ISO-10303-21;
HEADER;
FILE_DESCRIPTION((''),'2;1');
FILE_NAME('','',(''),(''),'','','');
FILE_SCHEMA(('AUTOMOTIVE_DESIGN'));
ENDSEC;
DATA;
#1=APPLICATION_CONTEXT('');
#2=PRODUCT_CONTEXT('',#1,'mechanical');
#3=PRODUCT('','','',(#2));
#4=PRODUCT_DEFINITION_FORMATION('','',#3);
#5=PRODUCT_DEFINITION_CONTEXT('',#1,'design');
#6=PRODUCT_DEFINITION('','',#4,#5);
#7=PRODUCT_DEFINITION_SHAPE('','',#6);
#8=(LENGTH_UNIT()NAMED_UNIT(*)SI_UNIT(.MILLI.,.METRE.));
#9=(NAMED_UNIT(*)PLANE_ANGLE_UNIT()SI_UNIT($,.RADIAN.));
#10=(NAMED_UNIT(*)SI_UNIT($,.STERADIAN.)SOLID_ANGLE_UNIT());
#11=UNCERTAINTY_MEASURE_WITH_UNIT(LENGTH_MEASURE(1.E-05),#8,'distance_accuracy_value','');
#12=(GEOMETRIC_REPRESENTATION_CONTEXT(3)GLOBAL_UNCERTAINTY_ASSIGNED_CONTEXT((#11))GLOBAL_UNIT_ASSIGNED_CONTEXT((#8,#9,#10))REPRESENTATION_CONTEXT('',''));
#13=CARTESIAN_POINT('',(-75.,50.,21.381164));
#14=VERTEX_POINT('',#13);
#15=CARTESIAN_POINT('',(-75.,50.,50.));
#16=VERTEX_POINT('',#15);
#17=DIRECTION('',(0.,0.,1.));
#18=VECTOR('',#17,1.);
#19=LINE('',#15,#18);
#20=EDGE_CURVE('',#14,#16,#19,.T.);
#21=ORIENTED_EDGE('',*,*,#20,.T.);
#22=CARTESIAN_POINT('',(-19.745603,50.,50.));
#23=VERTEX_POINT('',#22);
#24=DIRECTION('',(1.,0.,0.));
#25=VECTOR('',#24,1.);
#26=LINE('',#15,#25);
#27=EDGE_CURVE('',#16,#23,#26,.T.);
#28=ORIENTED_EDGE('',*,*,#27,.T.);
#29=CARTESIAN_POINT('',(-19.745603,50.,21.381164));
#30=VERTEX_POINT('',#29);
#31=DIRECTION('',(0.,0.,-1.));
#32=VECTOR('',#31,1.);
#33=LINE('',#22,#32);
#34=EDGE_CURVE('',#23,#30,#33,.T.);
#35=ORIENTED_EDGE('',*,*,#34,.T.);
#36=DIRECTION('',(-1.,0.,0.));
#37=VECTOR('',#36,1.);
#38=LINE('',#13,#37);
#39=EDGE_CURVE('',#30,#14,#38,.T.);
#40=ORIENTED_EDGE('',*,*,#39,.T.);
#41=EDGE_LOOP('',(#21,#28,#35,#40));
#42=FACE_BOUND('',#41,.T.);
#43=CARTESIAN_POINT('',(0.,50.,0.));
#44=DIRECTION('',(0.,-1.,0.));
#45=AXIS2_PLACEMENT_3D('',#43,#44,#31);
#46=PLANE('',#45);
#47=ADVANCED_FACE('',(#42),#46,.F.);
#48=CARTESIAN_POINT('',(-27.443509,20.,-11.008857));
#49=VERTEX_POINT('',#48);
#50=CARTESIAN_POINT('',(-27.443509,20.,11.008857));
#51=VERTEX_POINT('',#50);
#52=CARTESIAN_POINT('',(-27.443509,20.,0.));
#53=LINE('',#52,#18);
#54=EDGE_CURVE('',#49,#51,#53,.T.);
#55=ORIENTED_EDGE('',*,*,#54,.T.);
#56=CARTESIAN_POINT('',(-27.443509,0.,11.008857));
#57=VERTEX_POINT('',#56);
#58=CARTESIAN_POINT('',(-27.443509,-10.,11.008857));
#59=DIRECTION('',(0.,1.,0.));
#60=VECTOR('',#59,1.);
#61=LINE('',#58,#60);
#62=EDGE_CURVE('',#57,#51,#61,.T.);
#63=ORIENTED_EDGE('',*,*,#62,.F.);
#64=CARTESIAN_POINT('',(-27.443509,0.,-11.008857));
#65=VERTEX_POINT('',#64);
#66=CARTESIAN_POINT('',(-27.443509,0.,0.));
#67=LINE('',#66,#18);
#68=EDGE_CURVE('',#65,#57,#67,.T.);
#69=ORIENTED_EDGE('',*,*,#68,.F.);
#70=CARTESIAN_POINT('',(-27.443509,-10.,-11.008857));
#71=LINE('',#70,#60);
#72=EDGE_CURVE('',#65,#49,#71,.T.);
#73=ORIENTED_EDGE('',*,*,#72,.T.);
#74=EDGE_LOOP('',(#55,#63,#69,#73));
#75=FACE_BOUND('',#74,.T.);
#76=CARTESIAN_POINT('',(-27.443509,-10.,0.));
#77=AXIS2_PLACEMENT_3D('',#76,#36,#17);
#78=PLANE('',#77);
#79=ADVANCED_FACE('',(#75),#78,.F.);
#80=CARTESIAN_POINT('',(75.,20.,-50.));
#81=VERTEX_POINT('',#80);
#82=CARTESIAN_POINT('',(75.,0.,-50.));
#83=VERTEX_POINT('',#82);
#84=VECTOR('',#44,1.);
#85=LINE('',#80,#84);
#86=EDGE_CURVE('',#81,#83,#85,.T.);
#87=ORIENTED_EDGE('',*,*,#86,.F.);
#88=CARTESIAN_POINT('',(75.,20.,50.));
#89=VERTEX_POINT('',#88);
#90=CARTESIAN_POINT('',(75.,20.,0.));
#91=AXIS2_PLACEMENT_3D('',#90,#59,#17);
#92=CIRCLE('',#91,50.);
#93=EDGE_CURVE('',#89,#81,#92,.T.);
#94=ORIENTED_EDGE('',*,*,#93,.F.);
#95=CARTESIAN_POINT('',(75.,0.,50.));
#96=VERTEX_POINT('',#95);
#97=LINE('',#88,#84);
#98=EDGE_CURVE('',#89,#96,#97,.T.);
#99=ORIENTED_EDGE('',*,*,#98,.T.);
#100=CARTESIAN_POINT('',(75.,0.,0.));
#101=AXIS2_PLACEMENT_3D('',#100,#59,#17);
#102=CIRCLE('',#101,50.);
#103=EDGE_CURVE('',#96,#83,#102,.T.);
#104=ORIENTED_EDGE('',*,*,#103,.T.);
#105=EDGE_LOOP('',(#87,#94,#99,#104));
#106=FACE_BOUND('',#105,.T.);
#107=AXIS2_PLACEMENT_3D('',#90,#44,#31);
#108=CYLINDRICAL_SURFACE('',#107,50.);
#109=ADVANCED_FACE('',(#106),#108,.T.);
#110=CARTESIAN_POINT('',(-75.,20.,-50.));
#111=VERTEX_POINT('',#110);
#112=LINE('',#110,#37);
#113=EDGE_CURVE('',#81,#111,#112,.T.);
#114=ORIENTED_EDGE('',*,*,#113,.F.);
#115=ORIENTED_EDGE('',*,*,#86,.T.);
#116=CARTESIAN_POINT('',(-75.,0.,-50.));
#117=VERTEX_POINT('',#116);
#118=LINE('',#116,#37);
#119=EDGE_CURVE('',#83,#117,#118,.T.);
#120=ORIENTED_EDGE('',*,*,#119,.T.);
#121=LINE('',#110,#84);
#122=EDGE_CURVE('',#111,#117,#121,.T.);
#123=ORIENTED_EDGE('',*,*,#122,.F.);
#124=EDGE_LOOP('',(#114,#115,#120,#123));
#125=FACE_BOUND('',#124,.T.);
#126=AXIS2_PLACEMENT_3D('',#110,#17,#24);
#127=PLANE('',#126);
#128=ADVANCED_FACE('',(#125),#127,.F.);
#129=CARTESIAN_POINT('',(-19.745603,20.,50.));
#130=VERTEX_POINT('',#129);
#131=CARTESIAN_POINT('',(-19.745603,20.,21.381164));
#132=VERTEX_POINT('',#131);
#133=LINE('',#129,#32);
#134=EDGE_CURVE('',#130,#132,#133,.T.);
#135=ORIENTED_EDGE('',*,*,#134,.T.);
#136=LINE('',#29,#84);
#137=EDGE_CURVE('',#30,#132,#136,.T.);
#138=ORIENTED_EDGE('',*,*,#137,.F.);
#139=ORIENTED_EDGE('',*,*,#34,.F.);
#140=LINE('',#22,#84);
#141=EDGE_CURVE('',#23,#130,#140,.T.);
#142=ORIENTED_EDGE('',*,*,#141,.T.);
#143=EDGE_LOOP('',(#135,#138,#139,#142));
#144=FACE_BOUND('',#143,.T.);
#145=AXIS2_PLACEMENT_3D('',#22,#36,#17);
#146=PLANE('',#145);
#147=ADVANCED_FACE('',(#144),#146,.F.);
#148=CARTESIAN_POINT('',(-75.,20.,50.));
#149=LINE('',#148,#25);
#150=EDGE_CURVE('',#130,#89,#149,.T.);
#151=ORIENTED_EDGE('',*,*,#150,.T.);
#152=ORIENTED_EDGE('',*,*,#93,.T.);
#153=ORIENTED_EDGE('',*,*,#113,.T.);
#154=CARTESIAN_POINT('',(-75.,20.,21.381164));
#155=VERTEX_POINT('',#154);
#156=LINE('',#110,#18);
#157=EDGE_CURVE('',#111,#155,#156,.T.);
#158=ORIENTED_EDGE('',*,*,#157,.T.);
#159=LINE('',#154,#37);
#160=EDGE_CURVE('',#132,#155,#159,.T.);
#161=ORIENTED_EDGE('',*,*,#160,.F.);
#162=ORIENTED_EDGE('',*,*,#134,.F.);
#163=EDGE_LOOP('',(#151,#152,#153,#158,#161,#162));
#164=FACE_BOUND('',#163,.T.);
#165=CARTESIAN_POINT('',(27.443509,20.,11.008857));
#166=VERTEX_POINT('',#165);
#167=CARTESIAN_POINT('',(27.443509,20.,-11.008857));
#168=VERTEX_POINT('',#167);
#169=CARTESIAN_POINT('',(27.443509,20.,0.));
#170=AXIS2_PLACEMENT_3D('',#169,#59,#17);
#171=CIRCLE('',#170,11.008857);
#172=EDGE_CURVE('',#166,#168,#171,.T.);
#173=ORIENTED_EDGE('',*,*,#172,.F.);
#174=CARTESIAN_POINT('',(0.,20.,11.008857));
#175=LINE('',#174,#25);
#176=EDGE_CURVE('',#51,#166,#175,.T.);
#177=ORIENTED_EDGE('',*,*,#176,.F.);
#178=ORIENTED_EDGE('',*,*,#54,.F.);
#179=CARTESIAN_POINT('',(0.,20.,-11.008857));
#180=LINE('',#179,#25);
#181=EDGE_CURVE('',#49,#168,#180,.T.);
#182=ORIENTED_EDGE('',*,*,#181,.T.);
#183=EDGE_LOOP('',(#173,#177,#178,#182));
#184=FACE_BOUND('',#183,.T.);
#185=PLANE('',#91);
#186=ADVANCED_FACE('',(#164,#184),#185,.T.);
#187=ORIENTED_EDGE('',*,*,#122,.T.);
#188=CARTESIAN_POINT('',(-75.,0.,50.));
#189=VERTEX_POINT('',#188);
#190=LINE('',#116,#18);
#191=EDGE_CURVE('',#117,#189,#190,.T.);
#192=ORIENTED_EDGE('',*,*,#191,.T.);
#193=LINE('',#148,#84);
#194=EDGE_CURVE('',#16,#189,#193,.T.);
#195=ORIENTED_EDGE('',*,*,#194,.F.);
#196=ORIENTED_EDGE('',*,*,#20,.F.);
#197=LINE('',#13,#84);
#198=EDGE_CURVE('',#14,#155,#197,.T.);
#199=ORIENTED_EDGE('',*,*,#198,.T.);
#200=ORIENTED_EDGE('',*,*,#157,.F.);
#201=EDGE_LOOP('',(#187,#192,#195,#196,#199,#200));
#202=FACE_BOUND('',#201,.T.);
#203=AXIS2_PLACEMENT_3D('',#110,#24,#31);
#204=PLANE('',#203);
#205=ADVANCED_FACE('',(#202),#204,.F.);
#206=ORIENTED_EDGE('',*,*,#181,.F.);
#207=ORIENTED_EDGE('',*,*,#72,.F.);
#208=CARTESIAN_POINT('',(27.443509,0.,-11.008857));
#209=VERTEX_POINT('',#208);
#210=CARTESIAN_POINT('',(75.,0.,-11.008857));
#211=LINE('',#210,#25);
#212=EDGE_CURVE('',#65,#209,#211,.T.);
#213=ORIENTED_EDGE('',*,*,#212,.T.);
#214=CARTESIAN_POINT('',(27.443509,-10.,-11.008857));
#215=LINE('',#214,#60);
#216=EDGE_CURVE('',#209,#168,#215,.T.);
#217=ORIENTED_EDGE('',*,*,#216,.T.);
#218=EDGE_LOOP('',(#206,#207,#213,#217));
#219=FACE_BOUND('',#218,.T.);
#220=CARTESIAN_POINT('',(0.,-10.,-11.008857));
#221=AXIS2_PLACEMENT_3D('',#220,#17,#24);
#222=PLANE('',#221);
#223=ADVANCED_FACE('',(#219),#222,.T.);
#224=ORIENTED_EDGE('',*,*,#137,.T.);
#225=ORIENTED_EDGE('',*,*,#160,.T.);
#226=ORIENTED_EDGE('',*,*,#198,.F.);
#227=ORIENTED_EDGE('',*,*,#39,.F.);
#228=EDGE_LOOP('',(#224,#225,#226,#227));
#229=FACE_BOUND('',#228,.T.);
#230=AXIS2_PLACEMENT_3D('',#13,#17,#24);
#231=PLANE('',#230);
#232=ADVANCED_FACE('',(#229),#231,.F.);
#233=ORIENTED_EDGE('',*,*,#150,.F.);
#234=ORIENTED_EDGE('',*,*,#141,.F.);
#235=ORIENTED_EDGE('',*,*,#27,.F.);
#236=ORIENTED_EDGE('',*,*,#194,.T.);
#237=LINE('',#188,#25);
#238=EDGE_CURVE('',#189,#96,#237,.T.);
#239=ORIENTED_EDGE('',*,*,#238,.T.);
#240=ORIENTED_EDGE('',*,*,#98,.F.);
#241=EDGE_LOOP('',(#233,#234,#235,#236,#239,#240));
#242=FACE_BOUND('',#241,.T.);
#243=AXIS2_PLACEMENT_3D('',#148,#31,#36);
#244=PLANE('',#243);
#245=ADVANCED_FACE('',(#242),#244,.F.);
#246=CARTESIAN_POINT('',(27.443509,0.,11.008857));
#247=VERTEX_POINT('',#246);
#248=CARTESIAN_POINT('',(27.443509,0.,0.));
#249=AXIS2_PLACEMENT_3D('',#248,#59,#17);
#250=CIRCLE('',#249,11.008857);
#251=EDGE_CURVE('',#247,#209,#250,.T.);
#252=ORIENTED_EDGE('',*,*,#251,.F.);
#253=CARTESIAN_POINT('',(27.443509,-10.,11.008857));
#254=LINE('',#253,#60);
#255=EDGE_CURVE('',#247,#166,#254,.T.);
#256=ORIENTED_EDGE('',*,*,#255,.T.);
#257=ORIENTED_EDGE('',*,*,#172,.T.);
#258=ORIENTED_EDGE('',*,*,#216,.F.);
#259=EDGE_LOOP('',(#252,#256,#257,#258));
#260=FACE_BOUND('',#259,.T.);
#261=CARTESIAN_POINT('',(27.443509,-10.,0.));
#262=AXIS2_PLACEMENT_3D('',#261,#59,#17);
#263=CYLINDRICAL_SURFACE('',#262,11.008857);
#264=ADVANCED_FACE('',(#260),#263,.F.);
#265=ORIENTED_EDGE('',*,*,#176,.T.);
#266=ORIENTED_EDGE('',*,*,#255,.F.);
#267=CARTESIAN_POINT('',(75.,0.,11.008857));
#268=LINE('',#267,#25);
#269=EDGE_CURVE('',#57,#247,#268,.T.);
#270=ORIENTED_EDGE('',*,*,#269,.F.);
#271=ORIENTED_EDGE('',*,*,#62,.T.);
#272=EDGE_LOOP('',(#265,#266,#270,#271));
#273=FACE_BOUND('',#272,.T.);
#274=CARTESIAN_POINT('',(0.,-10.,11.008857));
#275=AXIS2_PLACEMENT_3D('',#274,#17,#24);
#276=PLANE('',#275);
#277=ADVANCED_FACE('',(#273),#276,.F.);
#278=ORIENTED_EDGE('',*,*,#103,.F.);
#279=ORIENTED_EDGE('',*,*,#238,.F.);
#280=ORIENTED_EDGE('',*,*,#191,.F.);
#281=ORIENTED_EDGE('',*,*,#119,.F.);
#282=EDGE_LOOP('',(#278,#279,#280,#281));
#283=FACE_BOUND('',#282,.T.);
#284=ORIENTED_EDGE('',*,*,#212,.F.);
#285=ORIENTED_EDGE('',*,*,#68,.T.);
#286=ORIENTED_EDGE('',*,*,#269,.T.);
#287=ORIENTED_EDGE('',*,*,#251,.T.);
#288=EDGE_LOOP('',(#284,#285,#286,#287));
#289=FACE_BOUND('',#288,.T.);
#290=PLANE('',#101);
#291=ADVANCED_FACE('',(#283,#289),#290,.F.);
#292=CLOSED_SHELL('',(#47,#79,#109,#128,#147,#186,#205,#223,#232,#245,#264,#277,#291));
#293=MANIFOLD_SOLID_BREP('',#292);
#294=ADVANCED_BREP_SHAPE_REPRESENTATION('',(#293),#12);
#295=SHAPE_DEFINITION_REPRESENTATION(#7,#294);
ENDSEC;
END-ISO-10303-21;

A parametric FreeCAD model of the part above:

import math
import FreeCAD as App
import Part
import Sketcher
Q = App.Units.Quantity

doc = App.newDocument("Part")
body = doc.addObject("PartDesign::Body", "Body")

# Sketch on XZ plane
sketch1 = body.newObject("Sketcher::SketchObject", "Sketch")
sketch1.AttachmentSupport = (doc.getObject("XZ_Plane"), [""])
sketch1.MapMode = "FlatFace"
sketch1.addGeometry(Part.LineSegment(App.Vector(75, -50, 0), App.Vector(-75, -50, 0)), False)
sketch1.addGeometry(Part.LineSegment(App.Vector(-75, -50, 0), App.Vector(-75, 50, 0)), False)
sketch1.addGeometry(Part.LineSegment(App.Vector(-75, 50, 0), App.Vector(75, 50, 0)), False)
sketch1.addGeometry(Part.ArcOfCircle(Part.Circle(App.Vector(75, 0, 0), App.Vector(0, 0, 1), 50), math.radians(-90), math.radians(90)), False)
sketch1.addConstraint(Sketcher.Constraint("Coincident", 0, 2, 1, 1))
sketch1.addConstraint(Sketcher.Constraint("Coincident", 1, 2, 2, 1))
sketch1.addConstraint(Sketcher.Constraint("Tangent", 2, 2, 3, 2))
sketch1.addConstraint(Sketcher.Constraint("Tangent", 3, 1, 0, 1))
sketch1.addConstraint(Sketcher.Constraint("Horizontal", 0))
sketch1.addConstraint(Sketcher.Constraint("Vertical", 1))
sketch1.addConstraint(Sketcher.Constraint("Horizontal", 2))
sketch1.addConstraint(Sketcher.Constraint("Symmetric", 0, 2, 2, 2, -1, 1))
sketch1.addConstraint(Sketcher.Constraint("Radius", 3, Q("50 mm")))
sketch1.addConstraint(Sketcher.Constraint("DistanceX", 0, 2, 0, 1, Q("150 mm")))
pad1 = body.newObject("PartDesign::Pad", "Pad")
pad1.Profile = sketch1
pad1.Length = 20
pad1.Reversed = True

# Sketch on XZ plane
sketch2 = body.newObject("Sketcher::SketchObject", "Sketch001")
sketch2.AttachmentSupport = (doc.getObject("XZ_Plane"), [""])
sketch2.MapMode = "FlatFace"
sketch2.AttachmentOffset = App.Placement(App.Vector(0, 0, -20), App.Rotation())
sketch2.addGeometry(Part.LineSegment(App.Vector(-75, 21, 0), App.Vector(-75, 50, 0)), False)
sketch2.addGeometry(Part.LineSegment(App.Vector(-75, 50, 0), App.Vector(-20, 50, 0)), False)
sketch2.addGeometry(Part.LineSegment(App.Vector(-20, 50, 0), App.Vector(-20, 21, 0)), False)
sketch2.addGeometry(Part.LineSegment(App.Vector(-20, 21, 0), App.Vector(-75, 21, 0)), False)
sketch2.addConstraint(Sketcher.Constraint("Coincident", 0, 2, 1, 1))
sketch2.addConstraint(Sketcher.Constraint("Coincident", 1, 2, 2, 1))
sketch2.addConstraint(Sketcher.Constraint("Coincident", 2, 2, 3, 1))
sketch2.addConstraint(Sketcher.Constraint("Coincident", 3, 2, 0, 1))
sketch2.addConstraint(Sketcher.Constraint("Vertical", 0))
sketch2.addConstraint(Sketcher.Constraint("Horizontal", 1))
sketch2.addConstraint(Sketcher.Constraint("Vertical", 2))
sketch2.addConstraint(Sketcher.Constraint("Horizontal", 3))
sketch2.addConstraint(Sketcher.Constraint("DistanceX", 0, 2, -1, 1, Q("75 mm")))
sketch2.addConstraint(Sketcher.Constraint("DistanceY", -1, 1, 0, 2, Q("50 mm")))
sketch2.addConstraint(Sketcher.Constraint("DistanceX", 1, 1, 1, 2, Q("55.254397 mm")))
sketch2.addConstraint(Sketcher.Constraint("DistanceY", 0, 1, 0, 2, Q("28.618836 mm")))
pad2 = body.newObject("PartDesign::Pad", "Pad001")
pad2.Profile = sketch2
pad2.Length = 30
pad2.Reversed = True

# Sketch on XZ plane
sketch3 = body.newObject("Sketcher::SketchObject", "Sketch002")
sketch3.AttachmentSupport = (doc.getObject("XZ_Plane"), [""])
sketch3.MapMode = "FlatFace"
sketch3.AttachmentOffset = App.Placement(App.Vector(0, 0, -20), App.Rotation())
sketch3.addGeometry(Part.ArcOfCircle(Part.Circle(App.Vector(27, 0, 0), App.Vector(0, 0, 1), 11), math.radians(-90), math.radians(90)), False)
sketch3.addGeometry(Part.LineSegment(App.Vector(27, -11, 0), App.Vector(-27, -11, 0)), False)
sketch3.addGeometry(Part.LineSegment(App.Vector(-27, -11, 0), App.Vector(-27, 11, 0)), False)
sketch3.addGeometry(Part.LineSegment(App.Vector(-27, 11, 0), App.Vector(27, 11, 0)), False)
sketch3.addConstraint(Sketcher.Constraint("Tangent", 0, 1, 1, 1))
sketch3.addConstraint(Sketcher.Constraint("Coincident", 1, 2, 2, 1))
sketch3.addConstraint(Sketcher.Constraint("Coincident", 2, 2, 3, 1))
sketch3.addConstraint(Sketcher.Constraint("Tangent", 3, 2, 0, 2))
sketch3.addConstraint(Sketcher.Constraint("Horizontal", 1))
sketch3.addConstraint(Sketcher.Constraint("Vertical", 2))
sketch3.addConstraint(Sketcher.Constraint("Horizontal", 3))
sketch3.addConstraint(Sketcher.Constraint("Symmetric", 0, 1, 2, 2, -1, 1))
sketch3.addConstraint(Sketcher.Constraint("Radius", 0, Q("11.008857 mm")))
sketch3.addConstraint(Sketcher.Constraint("DistanceX", 1, 2, 1, 1, Q("54.887017 mm")))
pocket1 = body.newObject("PartDesign::Pocket", "Pocket")
pocket1.Profile = sketch3
pocket1.Length = 30
pocket1.Reversed = True

doc.recompute()
